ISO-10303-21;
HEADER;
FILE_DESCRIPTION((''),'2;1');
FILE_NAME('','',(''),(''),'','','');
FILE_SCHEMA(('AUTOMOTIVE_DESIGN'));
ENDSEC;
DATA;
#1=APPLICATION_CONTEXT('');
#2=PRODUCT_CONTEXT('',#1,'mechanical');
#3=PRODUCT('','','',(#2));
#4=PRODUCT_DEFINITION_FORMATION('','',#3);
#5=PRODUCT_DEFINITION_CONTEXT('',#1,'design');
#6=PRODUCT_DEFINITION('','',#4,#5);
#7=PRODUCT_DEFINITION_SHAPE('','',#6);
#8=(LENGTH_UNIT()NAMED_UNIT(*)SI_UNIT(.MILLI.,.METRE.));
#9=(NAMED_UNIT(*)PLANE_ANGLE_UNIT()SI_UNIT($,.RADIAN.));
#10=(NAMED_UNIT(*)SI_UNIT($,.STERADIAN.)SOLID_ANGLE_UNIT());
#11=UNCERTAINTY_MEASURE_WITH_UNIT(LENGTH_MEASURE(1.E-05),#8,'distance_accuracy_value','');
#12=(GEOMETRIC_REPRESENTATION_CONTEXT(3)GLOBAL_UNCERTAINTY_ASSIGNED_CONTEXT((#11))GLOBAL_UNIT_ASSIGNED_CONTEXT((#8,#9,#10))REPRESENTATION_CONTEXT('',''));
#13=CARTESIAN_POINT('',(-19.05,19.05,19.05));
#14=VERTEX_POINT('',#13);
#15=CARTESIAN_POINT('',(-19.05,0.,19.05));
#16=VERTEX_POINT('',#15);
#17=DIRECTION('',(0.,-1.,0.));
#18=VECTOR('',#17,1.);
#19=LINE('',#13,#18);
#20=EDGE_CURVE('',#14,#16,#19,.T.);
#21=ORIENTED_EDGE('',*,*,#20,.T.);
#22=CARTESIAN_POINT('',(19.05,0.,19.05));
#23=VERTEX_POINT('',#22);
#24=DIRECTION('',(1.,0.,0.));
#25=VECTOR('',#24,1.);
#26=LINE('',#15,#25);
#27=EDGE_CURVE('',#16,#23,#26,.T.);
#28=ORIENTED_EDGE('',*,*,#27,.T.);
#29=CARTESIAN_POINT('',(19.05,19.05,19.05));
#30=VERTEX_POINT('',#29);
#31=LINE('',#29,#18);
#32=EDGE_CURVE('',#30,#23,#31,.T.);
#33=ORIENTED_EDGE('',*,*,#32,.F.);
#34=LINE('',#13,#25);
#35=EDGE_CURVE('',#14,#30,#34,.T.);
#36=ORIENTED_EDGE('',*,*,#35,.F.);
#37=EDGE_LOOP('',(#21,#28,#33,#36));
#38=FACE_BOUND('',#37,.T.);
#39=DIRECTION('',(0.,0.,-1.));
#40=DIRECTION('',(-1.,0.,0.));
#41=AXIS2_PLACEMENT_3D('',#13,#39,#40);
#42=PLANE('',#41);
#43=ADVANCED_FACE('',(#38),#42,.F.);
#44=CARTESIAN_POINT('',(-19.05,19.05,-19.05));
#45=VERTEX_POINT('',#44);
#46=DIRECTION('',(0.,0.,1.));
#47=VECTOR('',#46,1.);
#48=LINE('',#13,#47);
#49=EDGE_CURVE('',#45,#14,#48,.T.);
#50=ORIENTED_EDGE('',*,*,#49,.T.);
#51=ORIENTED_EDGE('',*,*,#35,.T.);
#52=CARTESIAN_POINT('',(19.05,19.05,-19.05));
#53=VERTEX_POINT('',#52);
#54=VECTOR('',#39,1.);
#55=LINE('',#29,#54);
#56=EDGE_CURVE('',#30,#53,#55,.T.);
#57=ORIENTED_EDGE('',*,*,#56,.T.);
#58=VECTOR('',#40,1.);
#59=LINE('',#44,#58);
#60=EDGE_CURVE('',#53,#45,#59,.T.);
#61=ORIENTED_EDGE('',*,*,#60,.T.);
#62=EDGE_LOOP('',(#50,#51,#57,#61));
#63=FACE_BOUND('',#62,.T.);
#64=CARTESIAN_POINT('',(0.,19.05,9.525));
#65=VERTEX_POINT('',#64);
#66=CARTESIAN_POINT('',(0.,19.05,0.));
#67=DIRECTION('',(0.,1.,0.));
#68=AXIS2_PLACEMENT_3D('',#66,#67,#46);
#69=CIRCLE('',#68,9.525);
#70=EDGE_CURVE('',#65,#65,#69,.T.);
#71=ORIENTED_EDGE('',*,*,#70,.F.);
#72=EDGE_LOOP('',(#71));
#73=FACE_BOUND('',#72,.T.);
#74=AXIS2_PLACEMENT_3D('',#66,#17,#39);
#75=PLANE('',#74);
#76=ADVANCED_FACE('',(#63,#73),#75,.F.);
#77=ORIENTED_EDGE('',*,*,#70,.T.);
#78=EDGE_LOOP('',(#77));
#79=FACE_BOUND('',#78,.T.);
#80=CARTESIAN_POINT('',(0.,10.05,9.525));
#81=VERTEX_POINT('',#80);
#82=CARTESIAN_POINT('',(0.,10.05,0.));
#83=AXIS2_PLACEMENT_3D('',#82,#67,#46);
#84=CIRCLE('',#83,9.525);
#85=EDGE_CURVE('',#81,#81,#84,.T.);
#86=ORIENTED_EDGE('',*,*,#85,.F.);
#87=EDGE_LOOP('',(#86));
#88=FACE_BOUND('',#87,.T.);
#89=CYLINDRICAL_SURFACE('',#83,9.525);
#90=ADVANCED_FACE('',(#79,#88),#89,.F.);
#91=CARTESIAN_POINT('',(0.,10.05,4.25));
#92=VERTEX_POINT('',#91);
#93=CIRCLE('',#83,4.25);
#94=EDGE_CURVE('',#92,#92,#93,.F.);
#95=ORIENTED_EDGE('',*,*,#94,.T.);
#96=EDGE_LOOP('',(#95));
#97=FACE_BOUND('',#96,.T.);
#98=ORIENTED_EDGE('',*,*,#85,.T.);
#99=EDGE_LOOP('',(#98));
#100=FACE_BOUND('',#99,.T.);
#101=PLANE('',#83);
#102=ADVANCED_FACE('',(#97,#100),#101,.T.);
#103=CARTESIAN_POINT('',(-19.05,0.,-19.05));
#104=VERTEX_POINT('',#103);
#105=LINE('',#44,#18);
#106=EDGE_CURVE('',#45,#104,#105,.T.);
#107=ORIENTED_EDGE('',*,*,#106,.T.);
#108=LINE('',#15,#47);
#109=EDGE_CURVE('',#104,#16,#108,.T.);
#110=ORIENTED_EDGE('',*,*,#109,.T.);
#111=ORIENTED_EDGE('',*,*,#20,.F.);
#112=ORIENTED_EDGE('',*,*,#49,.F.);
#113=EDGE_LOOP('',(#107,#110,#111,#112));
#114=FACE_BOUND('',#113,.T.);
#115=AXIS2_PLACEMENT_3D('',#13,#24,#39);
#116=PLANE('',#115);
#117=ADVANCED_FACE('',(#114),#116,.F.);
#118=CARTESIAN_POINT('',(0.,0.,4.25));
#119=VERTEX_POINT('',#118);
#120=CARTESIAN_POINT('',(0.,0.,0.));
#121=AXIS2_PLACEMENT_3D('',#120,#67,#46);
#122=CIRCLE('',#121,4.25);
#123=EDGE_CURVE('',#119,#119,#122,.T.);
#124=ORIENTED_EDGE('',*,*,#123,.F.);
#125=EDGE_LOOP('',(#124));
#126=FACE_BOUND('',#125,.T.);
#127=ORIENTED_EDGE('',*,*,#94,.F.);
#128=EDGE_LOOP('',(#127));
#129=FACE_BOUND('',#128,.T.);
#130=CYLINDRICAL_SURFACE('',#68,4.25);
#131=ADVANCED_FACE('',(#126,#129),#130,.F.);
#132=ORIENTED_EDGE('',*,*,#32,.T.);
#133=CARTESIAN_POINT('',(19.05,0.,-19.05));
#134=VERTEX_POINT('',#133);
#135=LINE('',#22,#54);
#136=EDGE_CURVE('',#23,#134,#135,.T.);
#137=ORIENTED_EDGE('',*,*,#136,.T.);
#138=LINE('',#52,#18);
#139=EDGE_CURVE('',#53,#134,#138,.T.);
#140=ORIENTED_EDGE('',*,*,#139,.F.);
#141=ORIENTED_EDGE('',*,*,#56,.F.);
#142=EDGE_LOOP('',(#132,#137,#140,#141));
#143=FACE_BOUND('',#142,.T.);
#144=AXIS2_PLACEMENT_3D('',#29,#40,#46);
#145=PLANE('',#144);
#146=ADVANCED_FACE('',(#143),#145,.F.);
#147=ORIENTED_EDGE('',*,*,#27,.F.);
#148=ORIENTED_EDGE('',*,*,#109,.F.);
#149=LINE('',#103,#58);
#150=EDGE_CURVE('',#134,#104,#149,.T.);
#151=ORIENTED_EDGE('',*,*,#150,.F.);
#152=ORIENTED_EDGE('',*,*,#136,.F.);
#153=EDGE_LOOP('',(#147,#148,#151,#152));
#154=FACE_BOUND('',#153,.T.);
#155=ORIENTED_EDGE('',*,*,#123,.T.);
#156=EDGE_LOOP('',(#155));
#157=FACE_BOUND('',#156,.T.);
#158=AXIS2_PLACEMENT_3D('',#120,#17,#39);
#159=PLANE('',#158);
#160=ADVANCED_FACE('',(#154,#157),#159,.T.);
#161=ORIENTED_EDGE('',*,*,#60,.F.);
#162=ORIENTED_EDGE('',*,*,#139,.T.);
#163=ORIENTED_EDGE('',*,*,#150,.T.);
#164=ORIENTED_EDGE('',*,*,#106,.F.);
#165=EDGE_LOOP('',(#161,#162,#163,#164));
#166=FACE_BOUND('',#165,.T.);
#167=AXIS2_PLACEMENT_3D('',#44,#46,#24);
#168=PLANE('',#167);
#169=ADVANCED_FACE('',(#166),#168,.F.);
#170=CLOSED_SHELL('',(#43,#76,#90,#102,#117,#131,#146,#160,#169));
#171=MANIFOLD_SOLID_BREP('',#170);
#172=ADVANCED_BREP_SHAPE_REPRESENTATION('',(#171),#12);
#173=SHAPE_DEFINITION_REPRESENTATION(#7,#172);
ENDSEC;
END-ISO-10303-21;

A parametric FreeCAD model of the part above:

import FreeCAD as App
import Part
import Sketcher
from FreeCAD import Vector
Q = App.Units.Quantity


def add_polygon(sketch, points):
    """Adds a closed chain of lines whose ends are joined by coincident constraints."""
    first, n = sketch.GeometryCount, len(points)
    for a, b in zip(points, points[1:] + points[:1]):
        sketch.addGeometry(Part.LineSegment(App.Vector(*a, 0), App.Vector(*b, 0)), False)
    for i in range(n):
        sketch.addConstraint(Sketcher.Constraint("Coincident", first + i, 2, first + (i + 1) % n, 1))

doc = App.newDocument("Part")
params = doc.addObject("Spreadsheet::Sheet", "Params")
for row, (alias, value) in enumerate([
    ("sketch1_width", "38.1 mm"),
    ("pad1_length", "19.05 mm"),
    ("sketch2_diameter", "8.5 mm"),
    ("hole_diameter", "8.5 mm"),
    ("sketch3_diameter", "19.05 mm"),
    ("pocket1_length", "9 mm"),
], start=1):
    params.set(f"A{row}", alias)
    params.set(f"B{row}", "=" + value)
    params.setAlias(f"B{row}", alias)

body = doc.addObject("PartDesign::Body", "Body")

# Sketch on XZ plane
sketch1 = body.newObject("Sketcher::SketchObject", "Sketch")
sketch1.AttachmentSupport = (doc.getObject("XZ_Plane"), [""])
sketch1.MapMode = "FlatFace"
add_polygon(sketch1, [(-19, -19), (-19, 19), (19, 19), (19, -19)])  # lines 0-3
sketch1.addConstraint([
    Sketcher.Constraint("Vertical", 0),
    Sketcher.Constraint("Horizontal", 1),
    Sketcher.Constraint("Vertical", 2),
    Sketcher.Constraint("Horizontal", 3),
    Sketcher.Constraint("Symmetric", 0, 2, 2, 2, -1, 1),
    Sketcher.Constraint("Equal", 3, 0),
    Sketcher.Constraint("DistanceX", 1, 1, 1, 2, Q("38.1 mm")),
])
sketch1.setExpression("Constraints[10]", "Params.sketch1_width")
pad1 = body.newObject("PartDesign::Pad", "Pad")
pad1.Profile = sketch1
pad1.setExpression("Length", "Params.pad1_length")
pad1.Reversed = True

# Sketch on XZ plane
sketch2 = body.newObject("Sketcher::SketchObject", "Sketch001")
sketch2.AttachmentSupport = (doc.getObject("XZ_Plane"), [""])
sketch2.MapMode = "FlatFace"
sketch2.AttachmentOffset = App.Placement(Vector(0, 0, -19.05), App.Rotation())
sketch2.addGeometry(Part.Circle(Vector(0, 0, 0), Vector(0, 0, 1), 4.2), False)
sketch2.addConstraint([
    Sketcher.Constraint("Coincident", 0, 3, -1, 1),
    Sketcher.Constraint("Diameter", 0, Q("8.5 mm")),
])
sketch2.setExpression("Constraints[1]", "Params.sketch2_diameter")
doc.recompute()
hole = body.newObject("PartDesign::Hole", "Hole")
hole.Profile = sketch2
hole.ThreadType = "None"
hole.setExpression("Diameter", "Params.hole_diameter")
hole.DepthType = "ThroughAll"
hole.Reversed = True

# Sketch on XZ plane
sketch3 = body.newObject("Sketcher::SketchObject", "Sketch002")
sketch3.AttachmentSupport = (doc.getObject("XZ_Plane"), [""])
sketch3.MapMode = "FlatFace"
sketch3.AttachmentOffset = App.Placement(Vector(0, 0, -19.05), App.Rotation())
sketch3.addGeometry(Part.Circle(Vector(0, 0, 0), Vector(0, 0, 1), 10), False)
sketch3.addConstraint([
    Sketcher.Constraint("Coincident", 0, 3, -1, 1),
    Sketcher.Constraint("Diameter", 0, Q("19.05 mm")),
])
sketch3.setExpression("Constraints[1]", "Params.sketch3_diameter")
pocket1 = body.newObject("PartDesign::Pocket", "Pocket")
pocket1.Profile = sketch3
pocket1.setExpression("Length", "Params.pocket1_length")
pocket1.Reversed = True

doc.recompute()
